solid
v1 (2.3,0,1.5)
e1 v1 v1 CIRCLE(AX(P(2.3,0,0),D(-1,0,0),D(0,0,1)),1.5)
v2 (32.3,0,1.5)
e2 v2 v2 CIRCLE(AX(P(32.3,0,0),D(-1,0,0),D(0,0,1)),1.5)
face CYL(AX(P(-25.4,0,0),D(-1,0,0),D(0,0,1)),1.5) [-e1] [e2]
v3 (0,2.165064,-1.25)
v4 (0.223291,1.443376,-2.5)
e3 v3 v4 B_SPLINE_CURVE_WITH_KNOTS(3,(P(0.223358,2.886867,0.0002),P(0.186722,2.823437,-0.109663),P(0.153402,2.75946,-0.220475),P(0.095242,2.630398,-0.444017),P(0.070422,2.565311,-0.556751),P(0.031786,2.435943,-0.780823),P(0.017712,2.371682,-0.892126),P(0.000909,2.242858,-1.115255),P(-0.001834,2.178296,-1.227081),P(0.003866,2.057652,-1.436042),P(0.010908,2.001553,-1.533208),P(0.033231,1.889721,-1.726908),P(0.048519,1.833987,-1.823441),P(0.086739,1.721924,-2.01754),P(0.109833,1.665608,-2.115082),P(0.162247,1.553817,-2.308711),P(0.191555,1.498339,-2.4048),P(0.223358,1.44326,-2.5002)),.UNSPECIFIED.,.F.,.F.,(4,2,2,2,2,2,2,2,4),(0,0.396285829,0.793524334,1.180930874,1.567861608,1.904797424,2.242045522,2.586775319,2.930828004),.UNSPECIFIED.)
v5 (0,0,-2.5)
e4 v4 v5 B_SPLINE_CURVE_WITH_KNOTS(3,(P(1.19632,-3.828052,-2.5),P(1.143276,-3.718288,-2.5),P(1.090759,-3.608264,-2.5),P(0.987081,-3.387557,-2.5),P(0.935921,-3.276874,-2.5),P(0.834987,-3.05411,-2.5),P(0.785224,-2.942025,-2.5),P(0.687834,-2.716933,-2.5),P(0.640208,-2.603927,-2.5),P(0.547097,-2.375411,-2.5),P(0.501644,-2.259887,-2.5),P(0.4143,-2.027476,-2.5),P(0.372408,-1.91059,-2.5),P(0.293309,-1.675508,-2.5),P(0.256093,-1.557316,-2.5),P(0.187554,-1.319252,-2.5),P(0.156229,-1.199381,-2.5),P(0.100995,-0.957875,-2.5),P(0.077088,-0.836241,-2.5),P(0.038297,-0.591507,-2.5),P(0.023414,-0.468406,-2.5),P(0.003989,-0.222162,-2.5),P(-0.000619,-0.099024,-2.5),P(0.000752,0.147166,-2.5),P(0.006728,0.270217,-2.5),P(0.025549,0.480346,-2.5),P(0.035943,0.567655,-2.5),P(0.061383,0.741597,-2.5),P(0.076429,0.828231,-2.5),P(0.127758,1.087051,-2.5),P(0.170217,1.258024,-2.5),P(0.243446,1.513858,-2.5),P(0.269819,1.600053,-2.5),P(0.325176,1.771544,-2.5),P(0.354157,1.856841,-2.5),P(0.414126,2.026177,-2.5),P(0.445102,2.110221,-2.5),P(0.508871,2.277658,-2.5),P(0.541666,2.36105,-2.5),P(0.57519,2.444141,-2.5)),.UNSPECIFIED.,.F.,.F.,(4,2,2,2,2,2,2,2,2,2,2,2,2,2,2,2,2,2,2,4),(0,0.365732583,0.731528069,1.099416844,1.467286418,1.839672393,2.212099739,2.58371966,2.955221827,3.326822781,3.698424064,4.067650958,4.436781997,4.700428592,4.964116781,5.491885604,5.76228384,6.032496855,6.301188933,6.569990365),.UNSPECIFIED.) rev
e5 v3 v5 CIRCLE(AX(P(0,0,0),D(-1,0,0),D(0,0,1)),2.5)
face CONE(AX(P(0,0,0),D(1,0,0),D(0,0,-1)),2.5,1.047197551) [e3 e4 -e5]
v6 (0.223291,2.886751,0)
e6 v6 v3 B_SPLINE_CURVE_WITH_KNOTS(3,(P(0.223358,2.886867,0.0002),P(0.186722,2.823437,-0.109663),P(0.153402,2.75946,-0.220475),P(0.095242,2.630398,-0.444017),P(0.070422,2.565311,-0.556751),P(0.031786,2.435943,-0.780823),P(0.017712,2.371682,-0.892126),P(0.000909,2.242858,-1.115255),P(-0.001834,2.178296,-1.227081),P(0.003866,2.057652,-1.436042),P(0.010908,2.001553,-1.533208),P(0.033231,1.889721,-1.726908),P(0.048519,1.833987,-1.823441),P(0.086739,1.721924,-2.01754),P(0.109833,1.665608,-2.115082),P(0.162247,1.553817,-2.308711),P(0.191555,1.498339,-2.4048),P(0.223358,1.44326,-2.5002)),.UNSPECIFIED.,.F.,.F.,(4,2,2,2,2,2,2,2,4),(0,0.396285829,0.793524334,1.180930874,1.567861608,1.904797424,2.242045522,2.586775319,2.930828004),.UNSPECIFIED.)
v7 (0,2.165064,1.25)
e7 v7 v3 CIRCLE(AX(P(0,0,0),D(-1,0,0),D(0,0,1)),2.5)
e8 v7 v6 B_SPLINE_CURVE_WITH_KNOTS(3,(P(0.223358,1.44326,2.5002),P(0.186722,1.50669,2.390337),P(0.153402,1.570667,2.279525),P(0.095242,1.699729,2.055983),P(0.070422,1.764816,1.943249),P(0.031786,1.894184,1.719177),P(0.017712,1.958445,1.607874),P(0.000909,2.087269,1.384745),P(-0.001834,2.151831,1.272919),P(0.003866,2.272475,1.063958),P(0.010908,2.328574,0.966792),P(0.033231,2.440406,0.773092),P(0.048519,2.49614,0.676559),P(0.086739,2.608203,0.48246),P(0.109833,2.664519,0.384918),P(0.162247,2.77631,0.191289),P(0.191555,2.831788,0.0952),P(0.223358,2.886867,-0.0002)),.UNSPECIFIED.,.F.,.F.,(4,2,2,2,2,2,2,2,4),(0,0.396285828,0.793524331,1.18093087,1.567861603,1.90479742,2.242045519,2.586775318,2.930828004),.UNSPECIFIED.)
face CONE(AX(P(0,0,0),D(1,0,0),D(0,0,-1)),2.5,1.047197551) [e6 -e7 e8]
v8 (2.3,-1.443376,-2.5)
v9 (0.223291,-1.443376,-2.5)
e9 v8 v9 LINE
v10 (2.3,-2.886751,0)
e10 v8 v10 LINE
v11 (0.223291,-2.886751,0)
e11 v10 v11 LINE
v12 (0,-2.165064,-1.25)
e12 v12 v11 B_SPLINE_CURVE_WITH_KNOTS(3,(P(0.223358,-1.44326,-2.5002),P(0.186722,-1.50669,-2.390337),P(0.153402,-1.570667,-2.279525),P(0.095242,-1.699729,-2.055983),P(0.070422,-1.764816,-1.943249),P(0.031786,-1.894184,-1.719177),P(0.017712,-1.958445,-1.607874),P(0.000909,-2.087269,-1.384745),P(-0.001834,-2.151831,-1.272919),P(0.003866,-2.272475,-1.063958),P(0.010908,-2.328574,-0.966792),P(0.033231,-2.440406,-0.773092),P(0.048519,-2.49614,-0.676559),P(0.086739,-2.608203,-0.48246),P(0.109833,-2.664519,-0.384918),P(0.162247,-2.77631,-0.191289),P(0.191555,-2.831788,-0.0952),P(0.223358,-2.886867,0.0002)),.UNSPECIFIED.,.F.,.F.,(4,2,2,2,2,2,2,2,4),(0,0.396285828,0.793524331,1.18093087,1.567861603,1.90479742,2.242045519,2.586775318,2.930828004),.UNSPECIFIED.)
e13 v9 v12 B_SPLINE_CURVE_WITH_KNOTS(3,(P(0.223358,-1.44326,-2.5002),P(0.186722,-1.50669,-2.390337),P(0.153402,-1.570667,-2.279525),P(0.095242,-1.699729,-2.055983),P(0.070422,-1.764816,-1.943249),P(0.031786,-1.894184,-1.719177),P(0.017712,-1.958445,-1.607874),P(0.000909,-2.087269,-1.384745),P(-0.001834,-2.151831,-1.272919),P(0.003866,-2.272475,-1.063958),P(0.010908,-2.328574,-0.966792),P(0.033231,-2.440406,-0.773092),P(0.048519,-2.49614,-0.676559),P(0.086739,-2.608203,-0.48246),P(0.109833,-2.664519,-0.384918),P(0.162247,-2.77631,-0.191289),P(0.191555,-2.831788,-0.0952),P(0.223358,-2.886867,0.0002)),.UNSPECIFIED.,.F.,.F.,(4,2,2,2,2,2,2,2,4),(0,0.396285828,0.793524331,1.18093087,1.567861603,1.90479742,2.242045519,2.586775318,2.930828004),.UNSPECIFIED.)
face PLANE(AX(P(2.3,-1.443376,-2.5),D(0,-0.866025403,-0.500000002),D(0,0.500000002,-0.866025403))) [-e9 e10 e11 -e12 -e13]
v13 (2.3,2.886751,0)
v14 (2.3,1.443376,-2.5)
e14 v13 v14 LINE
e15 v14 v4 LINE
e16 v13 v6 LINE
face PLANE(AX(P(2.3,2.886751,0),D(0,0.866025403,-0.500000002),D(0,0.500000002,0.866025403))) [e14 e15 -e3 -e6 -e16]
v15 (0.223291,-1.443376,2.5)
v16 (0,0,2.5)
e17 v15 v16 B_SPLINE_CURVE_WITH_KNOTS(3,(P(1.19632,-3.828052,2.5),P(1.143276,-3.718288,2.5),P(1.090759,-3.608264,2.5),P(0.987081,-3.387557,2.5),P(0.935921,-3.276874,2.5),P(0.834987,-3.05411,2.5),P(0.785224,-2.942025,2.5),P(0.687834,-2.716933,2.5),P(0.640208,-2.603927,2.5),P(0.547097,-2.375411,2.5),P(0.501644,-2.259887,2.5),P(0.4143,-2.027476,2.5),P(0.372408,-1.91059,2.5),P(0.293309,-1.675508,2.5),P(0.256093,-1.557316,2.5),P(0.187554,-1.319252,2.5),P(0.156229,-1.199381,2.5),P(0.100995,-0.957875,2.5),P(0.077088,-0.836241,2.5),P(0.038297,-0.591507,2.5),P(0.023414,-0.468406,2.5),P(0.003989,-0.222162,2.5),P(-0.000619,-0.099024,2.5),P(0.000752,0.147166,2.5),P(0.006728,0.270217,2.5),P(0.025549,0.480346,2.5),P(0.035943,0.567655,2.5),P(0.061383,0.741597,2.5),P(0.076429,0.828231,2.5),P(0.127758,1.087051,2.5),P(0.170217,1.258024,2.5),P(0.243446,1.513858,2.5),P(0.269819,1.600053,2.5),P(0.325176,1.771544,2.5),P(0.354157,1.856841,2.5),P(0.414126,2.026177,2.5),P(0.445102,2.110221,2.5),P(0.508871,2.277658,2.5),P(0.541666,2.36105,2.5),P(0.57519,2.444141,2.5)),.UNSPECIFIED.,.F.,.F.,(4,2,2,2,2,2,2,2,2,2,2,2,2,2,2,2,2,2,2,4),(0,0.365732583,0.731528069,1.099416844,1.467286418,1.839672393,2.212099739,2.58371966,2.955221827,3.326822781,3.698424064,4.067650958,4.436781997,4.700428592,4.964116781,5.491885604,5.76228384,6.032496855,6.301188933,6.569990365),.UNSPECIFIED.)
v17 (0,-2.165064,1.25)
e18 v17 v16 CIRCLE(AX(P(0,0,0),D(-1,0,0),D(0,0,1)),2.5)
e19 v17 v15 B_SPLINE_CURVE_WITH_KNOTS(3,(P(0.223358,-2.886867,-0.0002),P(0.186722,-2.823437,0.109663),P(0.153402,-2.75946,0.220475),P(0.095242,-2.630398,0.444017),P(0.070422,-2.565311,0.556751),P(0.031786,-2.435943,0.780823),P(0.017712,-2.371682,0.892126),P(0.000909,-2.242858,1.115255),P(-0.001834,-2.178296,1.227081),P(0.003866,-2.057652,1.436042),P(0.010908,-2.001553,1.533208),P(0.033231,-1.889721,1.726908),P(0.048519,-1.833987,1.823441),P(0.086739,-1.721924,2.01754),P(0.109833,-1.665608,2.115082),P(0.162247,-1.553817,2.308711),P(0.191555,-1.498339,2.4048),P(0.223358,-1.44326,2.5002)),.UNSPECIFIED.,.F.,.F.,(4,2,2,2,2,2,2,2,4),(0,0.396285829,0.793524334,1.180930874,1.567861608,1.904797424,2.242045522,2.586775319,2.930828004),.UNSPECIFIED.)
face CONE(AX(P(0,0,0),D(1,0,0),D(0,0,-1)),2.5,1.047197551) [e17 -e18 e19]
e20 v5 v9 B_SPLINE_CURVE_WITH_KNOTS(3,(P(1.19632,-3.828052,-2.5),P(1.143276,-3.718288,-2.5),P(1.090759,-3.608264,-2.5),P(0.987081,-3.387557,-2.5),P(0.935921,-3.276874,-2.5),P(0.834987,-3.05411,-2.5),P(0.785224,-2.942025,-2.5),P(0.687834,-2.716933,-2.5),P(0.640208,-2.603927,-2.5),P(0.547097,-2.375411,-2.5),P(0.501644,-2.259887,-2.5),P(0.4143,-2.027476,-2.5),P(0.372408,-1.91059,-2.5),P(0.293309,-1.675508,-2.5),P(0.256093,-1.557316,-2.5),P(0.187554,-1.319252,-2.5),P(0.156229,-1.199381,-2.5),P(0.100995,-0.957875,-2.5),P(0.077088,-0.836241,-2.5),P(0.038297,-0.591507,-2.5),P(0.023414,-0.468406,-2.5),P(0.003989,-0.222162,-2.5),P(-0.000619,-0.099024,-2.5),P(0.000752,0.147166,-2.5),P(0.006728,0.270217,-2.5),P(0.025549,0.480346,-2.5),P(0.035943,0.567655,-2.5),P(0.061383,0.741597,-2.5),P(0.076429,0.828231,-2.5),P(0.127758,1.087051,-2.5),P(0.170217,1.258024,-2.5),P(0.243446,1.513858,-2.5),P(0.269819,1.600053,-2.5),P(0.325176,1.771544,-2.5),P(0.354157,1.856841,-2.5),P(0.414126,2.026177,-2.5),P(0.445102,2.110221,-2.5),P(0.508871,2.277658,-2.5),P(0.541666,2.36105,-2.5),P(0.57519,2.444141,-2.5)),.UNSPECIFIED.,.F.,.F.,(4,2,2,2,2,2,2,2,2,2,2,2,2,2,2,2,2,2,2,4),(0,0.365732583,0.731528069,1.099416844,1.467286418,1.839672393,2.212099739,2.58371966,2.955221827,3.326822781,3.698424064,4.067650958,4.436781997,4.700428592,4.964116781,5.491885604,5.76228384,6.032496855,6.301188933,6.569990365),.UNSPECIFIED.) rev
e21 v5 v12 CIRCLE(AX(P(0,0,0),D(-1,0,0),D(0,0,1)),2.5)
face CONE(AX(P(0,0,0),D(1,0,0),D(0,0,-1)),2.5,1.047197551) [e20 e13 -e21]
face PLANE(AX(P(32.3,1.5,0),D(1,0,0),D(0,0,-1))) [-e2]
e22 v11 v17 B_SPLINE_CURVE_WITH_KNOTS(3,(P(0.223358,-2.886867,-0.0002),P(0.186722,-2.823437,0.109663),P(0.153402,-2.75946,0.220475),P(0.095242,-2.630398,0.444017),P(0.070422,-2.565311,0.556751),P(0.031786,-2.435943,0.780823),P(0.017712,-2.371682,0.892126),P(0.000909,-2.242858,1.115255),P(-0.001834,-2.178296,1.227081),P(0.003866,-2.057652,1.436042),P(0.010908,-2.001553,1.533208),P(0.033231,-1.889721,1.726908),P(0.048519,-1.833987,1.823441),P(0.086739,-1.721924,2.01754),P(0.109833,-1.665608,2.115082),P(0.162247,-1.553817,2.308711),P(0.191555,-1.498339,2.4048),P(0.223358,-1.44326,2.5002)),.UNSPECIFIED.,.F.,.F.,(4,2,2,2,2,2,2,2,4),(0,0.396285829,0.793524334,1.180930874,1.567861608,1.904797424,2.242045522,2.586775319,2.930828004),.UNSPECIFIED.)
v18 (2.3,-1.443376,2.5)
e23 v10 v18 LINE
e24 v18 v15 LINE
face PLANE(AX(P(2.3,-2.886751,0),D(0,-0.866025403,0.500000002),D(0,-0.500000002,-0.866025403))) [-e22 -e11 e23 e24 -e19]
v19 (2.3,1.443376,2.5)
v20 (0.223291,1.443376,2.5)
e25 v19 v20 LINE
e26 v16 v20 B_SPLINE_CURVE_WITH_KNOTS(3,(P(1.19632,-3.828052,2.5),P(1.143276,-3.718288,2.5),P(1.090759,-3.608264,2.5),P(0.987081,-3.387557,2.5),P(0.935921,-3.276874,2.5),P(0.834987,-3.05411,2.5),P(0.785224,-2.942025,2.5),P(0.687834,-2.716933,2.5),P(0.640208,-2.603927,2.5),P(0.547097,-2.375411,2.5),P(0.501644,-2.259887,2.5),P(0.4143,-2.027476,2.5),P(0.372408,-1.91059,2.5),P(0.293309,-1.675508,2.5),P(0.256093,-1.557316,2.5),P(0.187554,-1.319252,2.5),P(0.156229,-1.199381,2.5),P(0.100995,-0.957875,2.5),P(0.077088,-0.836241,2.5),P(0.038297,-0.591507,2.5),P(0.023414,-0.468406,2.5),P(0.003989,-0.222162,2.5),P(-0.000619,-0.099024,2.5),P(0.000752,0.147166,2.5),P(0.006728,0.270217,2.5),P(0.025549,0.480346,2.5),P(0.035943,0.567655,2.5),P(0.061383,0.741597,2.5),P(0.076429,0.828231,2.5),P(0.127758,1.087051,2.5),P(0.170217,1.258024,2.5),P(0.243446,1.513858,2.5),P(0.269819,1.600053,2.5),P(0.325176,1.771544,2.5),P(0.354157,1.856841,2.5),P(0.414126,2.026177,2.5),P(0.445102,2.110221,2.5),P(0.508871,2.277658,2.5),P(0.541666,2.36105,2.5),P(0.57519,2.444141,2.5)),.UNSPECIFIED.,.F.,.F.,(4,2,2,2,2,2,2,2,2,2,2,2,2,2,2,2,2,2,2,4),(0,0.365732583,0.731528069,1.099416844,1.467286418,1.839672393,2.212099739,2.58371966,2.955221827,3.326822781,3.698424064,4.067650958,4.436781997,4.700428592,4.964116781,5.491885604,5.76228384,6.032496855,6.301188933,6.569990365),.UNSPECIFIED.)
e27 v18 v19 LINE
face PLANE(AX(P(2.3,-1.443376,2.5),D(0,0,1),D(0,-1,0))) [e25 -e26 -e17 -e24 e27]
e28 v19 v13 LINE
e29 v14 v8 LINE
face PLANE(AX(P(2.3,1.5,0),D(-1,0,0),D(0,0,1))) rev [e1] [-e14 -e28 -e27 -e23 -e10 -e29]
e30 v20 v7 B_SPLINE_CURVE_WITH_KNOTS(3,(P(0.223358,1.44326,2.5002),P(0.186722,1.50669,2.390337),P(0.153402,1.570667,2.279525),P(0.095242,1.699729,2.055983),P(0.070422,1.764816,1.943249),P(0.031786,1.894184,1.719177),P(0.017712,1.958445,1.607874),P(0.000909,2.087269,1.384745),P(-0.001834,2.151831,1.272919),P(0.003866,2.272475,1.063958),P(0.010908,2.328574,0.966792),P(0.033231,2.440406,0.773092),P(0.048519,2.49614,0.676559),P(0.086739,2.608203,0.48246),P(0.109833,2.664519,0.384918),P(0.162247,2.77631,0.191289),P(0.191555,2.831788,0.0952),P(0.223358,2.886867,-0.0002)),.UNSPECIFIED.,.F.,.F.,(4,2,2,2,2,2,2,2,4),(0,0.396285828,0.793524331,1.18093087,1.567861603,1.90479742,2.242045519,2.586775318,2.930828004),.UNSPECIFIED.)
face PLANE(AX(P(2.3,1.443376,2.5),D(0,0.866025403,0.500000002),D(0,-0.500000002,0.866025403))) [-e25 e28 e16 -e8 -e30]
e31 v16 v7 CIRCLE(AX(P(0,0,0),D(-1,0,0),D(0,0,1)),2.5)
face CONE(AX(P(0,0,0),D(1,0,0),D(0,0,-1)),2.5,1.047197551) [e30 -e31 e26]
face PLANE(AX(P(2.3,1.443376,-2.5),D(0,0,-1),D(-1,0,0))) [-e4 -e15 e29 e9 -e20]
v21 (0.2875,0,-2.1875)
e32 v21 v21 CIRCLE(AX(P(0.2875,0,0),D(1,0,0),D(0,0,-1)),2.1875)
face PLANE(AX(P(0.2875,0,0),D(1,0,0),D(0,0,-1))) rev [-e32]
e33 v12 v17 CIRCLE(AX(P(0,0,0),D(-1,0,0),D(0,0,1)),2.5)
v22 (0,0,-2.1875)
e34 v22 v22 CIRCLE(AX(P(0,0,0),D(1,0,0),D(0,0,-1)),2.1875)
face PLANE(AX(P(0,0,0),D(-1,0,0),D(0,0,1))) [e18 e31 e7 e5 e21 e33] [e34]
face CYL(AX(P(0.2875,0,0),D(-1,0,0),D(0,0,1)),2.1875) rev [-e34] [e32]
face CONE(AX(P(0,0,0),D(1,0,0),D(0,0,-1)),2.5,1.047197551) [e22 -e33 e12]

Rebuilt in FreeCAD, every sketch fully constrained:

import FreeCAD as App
import Part
import Sketcher

V = App.Vector
Q = App.Units.Quantity

doc = App.newDocument("Part")
body = doc.addObject("PartDesign::Body", "Body")

sketch1 = doc.addObject("Sketcher::SketchObject", "Sketch")
body.addObject(sketch1)
sketch1.AttachmentSupport = (doc.XY_Plane, [""])
sketch1.MapMode = "FlatFace"
sketch1.addGeometry([
    Part.LineSegment(V(2.3, 1.5, 0), V(2.3, 2.89, 0)),
    Part.LineSegment(V(2.3, 2.89, 0), V(0.22, 2.89, 0)),
    Part.LineSegment(V(0.22, 2.89, 0), V(0, 2.5, 0)),
    Part.LineSegment(V(0, 2.5, 0), V(0, 0, 0)),
    Part.LineSegment(V(0, 0, 0), V(32.3, 0, 0)),
    Part.LineSegment(V(32.3, 0, 0), V(32.3, 1.5, 0)),
    Part.LineSegment(V(32.3, 1.5, 0), V(2.3, 1.5, 0)),
], False)
sketch1.addConstraint([
    Sketcher.Constraint("Coincident", 0, 2, 1, 1),
    Sketcher.Constraint("Coincident", 1, 2, 2, 1),
    Sketcher.Constraint("Coincident", 2, 2, 3, 1),
    Sketcher.Constraint("Coincident", 3, 2, 4, 1),
    Sketcher.Constraint("Coincident", 4, 2, 5, 1),
    Sketcher.Constraint("Coincident", 5, 2, 6, 1),
    Sketcher.Constraint("Coincident", 6, 2, 0, 1),
    Sketcher.Constraint("Vertical", 0),
    Sketcher.Constraint("Horizontal", 1),
    Sketcher.Constraint("Vertical", 3),
    Sketcher.Constraint("Horizontal", 4),
    Sketcher.Constraint("Vertical", 5),
    Sketcher.Constraint("Horizontal", 6),
    Sketcher.Constraint("Coincident", 3, 2, -1, 1),
    Sketcher.Constraint("DistanceX", 6, 2, 6, 1, 30.0),
    Sketcher.Constraint("Angle", 2, Q("-120 deg")),
    Sketcher.Constraint("DistanceX", 4, 1, 4, 2, 32.3),
    Sketcher.Constraint("DistanceY", 3, 2, 3, 1, 2.5),
    Sketcher.Constraint("DistanceY", 5, 1, 5, 2, 1.5),
    Sketcher.Constraint("DistanceX", 1, 2, 1, 1, 2.07666),
])
revolution = doc.addObject("PartDesign::Revolution", "Revolution")
body.addObject(revolution)
revolution.Profile = sketch1
revolution.ReferenceAxis = (sketch1, ["H_Axis"])
revolution.Angle = 360

sketch2 = doc.addObject("Sketcher::SketchObject", "Sketch001")
body.addObject(sketch2)
sketch2.AttachmentSupport = (doc.YZ_Plane, [""])
sketch2.MapMode = "FlatFace"
sketch2.addGeometry([
    Part.Circle(V(0, 0, 0), V(0, 0, 1), 2.9),
    Part.LineSegment(V(-1.4, 2.5, 0), V(1.4, 2.5, 0)),
    Part.LineSegment(V(1.4, 2.5, 0), V(2.9, 0, 0)),
    Part.LineSegment(V(2.9, 0, 0), V(1.4, -2.5, 0)),
    Part.LineSegment(V(1.4, -2.5, 0), V(-1.4, -2.5, 0)),
    Part.LineSegment(V(-1.4, -2.5, 0), V(-2.9, 0, 0)),
    Part.LineSegment(V(-2.9, 0, 0), V(-1.4, 2.5, 0)),
], False)
sketch2.addConstraint([
    Sketcher.Constraint("Coincident", 1, 2, 2, 1),
    Sketcher.Constraint("Coincident", 2, 2, 3, 1),
    Sketcher.Constraint("Coincident", 3, 2, 4, 1),
    Sketcher.Constraint("Coincident", 4, 2, 5, 1),
    Sketcher.Constraint("Coincident", 5, 2, 6, 1),
    Sketcher.Constraint("Coincident", 6, 2, 1, 1),
    Sketcher.Constraint("Horizontal", 1),
    Sketcher.Constraint("Horizontal", 4),
    Sketcher.Constraint("Coincident", 0, 3, -1, 1),
    Sketcher.Constraint("Symmetric", 1, 2, 4, 2, -1, 1),
    Sketcher.Constraint("Symmetric", 2, 2, 5, 2, -1, 1),
    Sketcher.Constraint("PointOnObject", 2, 2, -1),
    Sketcher.Constraint("Parallel", 3, 6),
    Sketcher.Constraint("Vertical", 1, 2, 3, 2),
    Sketcher.Constraint("Angle", 2, Q("-60 deg")),
    Sketcher.Constraint("DistanceY", 3, 2, 1, 2, 5.0),
    Sketcher.Constraint("Diameter", 0, 5.831409),
    Sketcher.Constraint("DistanceX", 1, 1, 1, 2, 2.886751),
])
pocket1 = doc.addObject("PartDesign::Pocket", "Pocket")
body.addObject(pocket1)
pocket1.Profile = sketch2
pocket1.Length = 2.3
pocket1.Reversed = True

sketch3 = doc.addObject("Sketcher::SketchObject", "Sketch002")
body.addObject(sketch3)
sketch3.AttachmentSupport = (doc.YZ_Plane, [""])
sketch3.MapMode = "FlatFace"
sketch3.addGeometry(Part.Circle(V(0, 0, 0), V(0, 0, 1), 2.2), False)
sketch3.addConstraint([
    Sketcher.Constraint("Coincident", 0, 3, -1, 1),
    Sketcher.Constraint("Diameter", 0, 4.375),
])
pocket2 = doc.addObject("PartDesign::Pocket", "Pocket001")
body.addObject(pocket2)
pocket2.Profile = sketch3
pocket2.Length = 0.2875
pocket2.Reversed = True

doc.recompute()
